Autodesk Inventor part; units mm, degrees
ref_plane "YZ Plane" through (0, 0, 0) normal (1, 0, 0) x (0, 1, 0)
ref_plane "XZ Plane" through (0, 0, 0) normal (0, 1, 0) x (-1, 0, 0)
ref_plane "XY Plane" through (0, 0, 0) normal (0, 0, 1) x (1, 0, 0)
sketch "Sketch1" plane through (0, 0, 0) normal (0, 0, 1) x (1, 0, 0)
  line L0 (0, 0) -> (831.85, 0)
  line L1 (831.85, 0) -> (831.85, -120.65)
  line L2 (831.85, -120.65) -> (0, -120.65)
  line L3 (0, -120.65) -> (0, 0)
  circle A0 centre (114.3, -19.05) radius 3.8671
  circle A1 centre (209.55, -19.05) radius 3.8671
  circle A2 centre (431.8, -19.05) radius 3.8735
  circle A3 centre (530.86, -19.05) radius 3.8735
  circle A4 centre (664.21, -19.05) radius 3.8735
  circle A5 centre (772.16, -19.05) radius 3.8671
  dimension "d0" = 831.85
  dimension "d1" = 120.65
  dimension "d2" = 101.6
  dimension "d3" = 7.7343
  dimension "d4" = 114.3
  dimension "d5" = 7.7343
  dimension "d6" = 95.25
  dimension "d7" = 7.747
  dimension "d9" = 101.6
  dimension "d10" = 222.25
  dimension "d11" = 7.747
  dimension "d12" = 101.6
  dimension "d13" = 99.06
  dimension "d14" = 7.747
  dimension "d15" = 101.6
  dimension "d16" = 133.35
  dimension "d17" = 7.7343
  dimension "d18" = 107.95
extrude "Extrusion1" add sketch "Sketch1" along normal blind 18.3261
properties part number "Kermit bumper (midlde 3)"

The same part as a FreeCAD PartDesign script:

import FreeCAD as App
import Part
import Sketcher
Q = App.Units.Quantity

doc = App.newDocument("Part")
params = doc.addObject("Spreadsheet::Sheet", "Params")
for row, (alias, value) in enumerate([
    ("sketch1_diameter", "0.305 in"),
    ("sketch1_width", "32.75 in"),
    ("sketch1_height", "4.75 in"),
    ("pad1_length", "0.7215 in"),
], start=1):
    params.set(f"A{row}", alias)
    params.set(f"B{row}", "=" + value)
    params.setAlias(f"B{row}", alias)

body = doc.addObject("PartDesign::Body", "Body")

# Sketch on XY plane
sketch1 = body.newObject("Sketcher::SketchObject", "Sketch")
sketch1.AttachmentSupport = (doc.getObject("XY_Plane"), [""])
sketch1.MapMode = "FlatFace"
sketch1.addGeometry([
    Part.LineSegment(App.Vector(831.85, 0, 0), App.Vector(0, 0, 0)),  # 0
    Part.LineSegment(App.Vector(0, 0, 0), App.Vector(0, -120.65, 0)),  # 1
    Part.LineSegment(App.Vector(0, -120.65, 0), App.Vector(831.85, -120.65, 0)),  # 2
    Part.LineSegment(App.Vector(831.85, -120.65, 0), App.Vector(831.85, 0, 0)),  # 3
    Part.Circle(App.Vector(114.3, -19.05, 0), App.Vector(0, 0, 1), 3.8671),  # 4
    Part.Circle(App.Vector(209.55, -19.05, 0), App.Vector(0, 0, 1), 3.8671),  # 5
    Part.Circle(App.Vector(431.8, -19.05, 0), App.Vector(0, 0, 1), 3.8735),  # 6
    Part.Circle(App.Vector(530.86, -19.05, 0), App.Vector(0, 0, 1), 3.8735),  # 7
    Part.Circle(App.Vector(664.21, -19.05, 0), App.Vector(0, 0, 1), 3.8735),  # 8
    Part.Circle(App.Vector(772.16, -19.05, 0), App.Vector(0, 0, 1), 3.8671),  # 9
], False)
sketch1.addConstraint([
    Sketcher.Constraint("Coincident", 0, 2, 1, 1),
    Sketcher.Constraint("Coincident", 1, 2, 2, 1),
    Sketcher.Constraint("Coincident", 2, 2, 3, 1),
    Sketcher.Constraint("Coincident", 3, 2, 0, 1),
    Sketcher.Constraint("Horizontal", 0),
    Sketcher.Constraint("Vertical", 1),
    Sketcher.Constraint("Horizontal", 2),
    Sketcher.Constraint("Vertical", 3),
    Sketcher.Constraint("Coincident", 0, 2, -1, 1),
    Sketcher.Constraint("Equal", 4, 5),
    Sketcher.Constraint("Equal", 6, 7),
    Sketcher.Constraint("Equal", 7, 8),
    Sketcher.Constraint("Equal", 5, 9),
    Sketcher.Constraint("Horizontal", 4, 3, 5, 3),
    Sketcher.Constraint("Horizontal", 5, 3, 6, 3),
    Sketcher.Constraint("Horizontal", 6, 3, 7, 3),
    Sketcher.Constraint("Horizontal", 7, 3, 8, 3),
    Sketcher.Constraint("Horizontal", 8, 3, 9, 3),
    Sketcher.Constraint("Diameter", 6, Q("0.305 in")),
    Sketcher.Constraint("DistanceY", 1, 2, 4, 3, Q("4 in")),
    Sketcher.Constraint("Diameter", 4, Q("0.3045 in")),
    Sketcher.Constraint("DistanceX", 0, 2, 0, 1, Q("32.75 in")),
    Sketcher.Constraint("DistanceY", 1, 2, 1, 1, Q("4.75 in")),
    Sketcher.Constraint("DistanceX", -1, 1, 4, 3, Q("4.5 in")),
    Sketcher.Constraint("DistanceX", 6, 3, 7, 3, Q("3.9 in")),
    Sketcher.Constraint("DistanceX", 4, 3, 5, 3, Q("3.75 in")),
    Sketcher.Constraint("DistanceX", 5, 3, 6, 3, Q("8.75 in")),
    Sketcher.Constraint("DistanceX", 7, 3, 8, 3, Q("5.25 in")),
    Sketcher.Constraint("DistanceX", 8, 3, 9, 3, Q("4.25 in")),
])
sketch1.setExpression("Constraints[18]", "Params.sketch1_diameter")
sketch1.setExpression("Constraints[21]", "Params.sketch1_width")
sketch1.setExpression("Constraints[22]", "Params.sketch1_height")
pad1 = body.newObject("PartDesign::Pad", "Pad")
pad1.Profile = sketch1
pad1.setExpression("Length", "Params.pad1_length")

doc.recompute()
